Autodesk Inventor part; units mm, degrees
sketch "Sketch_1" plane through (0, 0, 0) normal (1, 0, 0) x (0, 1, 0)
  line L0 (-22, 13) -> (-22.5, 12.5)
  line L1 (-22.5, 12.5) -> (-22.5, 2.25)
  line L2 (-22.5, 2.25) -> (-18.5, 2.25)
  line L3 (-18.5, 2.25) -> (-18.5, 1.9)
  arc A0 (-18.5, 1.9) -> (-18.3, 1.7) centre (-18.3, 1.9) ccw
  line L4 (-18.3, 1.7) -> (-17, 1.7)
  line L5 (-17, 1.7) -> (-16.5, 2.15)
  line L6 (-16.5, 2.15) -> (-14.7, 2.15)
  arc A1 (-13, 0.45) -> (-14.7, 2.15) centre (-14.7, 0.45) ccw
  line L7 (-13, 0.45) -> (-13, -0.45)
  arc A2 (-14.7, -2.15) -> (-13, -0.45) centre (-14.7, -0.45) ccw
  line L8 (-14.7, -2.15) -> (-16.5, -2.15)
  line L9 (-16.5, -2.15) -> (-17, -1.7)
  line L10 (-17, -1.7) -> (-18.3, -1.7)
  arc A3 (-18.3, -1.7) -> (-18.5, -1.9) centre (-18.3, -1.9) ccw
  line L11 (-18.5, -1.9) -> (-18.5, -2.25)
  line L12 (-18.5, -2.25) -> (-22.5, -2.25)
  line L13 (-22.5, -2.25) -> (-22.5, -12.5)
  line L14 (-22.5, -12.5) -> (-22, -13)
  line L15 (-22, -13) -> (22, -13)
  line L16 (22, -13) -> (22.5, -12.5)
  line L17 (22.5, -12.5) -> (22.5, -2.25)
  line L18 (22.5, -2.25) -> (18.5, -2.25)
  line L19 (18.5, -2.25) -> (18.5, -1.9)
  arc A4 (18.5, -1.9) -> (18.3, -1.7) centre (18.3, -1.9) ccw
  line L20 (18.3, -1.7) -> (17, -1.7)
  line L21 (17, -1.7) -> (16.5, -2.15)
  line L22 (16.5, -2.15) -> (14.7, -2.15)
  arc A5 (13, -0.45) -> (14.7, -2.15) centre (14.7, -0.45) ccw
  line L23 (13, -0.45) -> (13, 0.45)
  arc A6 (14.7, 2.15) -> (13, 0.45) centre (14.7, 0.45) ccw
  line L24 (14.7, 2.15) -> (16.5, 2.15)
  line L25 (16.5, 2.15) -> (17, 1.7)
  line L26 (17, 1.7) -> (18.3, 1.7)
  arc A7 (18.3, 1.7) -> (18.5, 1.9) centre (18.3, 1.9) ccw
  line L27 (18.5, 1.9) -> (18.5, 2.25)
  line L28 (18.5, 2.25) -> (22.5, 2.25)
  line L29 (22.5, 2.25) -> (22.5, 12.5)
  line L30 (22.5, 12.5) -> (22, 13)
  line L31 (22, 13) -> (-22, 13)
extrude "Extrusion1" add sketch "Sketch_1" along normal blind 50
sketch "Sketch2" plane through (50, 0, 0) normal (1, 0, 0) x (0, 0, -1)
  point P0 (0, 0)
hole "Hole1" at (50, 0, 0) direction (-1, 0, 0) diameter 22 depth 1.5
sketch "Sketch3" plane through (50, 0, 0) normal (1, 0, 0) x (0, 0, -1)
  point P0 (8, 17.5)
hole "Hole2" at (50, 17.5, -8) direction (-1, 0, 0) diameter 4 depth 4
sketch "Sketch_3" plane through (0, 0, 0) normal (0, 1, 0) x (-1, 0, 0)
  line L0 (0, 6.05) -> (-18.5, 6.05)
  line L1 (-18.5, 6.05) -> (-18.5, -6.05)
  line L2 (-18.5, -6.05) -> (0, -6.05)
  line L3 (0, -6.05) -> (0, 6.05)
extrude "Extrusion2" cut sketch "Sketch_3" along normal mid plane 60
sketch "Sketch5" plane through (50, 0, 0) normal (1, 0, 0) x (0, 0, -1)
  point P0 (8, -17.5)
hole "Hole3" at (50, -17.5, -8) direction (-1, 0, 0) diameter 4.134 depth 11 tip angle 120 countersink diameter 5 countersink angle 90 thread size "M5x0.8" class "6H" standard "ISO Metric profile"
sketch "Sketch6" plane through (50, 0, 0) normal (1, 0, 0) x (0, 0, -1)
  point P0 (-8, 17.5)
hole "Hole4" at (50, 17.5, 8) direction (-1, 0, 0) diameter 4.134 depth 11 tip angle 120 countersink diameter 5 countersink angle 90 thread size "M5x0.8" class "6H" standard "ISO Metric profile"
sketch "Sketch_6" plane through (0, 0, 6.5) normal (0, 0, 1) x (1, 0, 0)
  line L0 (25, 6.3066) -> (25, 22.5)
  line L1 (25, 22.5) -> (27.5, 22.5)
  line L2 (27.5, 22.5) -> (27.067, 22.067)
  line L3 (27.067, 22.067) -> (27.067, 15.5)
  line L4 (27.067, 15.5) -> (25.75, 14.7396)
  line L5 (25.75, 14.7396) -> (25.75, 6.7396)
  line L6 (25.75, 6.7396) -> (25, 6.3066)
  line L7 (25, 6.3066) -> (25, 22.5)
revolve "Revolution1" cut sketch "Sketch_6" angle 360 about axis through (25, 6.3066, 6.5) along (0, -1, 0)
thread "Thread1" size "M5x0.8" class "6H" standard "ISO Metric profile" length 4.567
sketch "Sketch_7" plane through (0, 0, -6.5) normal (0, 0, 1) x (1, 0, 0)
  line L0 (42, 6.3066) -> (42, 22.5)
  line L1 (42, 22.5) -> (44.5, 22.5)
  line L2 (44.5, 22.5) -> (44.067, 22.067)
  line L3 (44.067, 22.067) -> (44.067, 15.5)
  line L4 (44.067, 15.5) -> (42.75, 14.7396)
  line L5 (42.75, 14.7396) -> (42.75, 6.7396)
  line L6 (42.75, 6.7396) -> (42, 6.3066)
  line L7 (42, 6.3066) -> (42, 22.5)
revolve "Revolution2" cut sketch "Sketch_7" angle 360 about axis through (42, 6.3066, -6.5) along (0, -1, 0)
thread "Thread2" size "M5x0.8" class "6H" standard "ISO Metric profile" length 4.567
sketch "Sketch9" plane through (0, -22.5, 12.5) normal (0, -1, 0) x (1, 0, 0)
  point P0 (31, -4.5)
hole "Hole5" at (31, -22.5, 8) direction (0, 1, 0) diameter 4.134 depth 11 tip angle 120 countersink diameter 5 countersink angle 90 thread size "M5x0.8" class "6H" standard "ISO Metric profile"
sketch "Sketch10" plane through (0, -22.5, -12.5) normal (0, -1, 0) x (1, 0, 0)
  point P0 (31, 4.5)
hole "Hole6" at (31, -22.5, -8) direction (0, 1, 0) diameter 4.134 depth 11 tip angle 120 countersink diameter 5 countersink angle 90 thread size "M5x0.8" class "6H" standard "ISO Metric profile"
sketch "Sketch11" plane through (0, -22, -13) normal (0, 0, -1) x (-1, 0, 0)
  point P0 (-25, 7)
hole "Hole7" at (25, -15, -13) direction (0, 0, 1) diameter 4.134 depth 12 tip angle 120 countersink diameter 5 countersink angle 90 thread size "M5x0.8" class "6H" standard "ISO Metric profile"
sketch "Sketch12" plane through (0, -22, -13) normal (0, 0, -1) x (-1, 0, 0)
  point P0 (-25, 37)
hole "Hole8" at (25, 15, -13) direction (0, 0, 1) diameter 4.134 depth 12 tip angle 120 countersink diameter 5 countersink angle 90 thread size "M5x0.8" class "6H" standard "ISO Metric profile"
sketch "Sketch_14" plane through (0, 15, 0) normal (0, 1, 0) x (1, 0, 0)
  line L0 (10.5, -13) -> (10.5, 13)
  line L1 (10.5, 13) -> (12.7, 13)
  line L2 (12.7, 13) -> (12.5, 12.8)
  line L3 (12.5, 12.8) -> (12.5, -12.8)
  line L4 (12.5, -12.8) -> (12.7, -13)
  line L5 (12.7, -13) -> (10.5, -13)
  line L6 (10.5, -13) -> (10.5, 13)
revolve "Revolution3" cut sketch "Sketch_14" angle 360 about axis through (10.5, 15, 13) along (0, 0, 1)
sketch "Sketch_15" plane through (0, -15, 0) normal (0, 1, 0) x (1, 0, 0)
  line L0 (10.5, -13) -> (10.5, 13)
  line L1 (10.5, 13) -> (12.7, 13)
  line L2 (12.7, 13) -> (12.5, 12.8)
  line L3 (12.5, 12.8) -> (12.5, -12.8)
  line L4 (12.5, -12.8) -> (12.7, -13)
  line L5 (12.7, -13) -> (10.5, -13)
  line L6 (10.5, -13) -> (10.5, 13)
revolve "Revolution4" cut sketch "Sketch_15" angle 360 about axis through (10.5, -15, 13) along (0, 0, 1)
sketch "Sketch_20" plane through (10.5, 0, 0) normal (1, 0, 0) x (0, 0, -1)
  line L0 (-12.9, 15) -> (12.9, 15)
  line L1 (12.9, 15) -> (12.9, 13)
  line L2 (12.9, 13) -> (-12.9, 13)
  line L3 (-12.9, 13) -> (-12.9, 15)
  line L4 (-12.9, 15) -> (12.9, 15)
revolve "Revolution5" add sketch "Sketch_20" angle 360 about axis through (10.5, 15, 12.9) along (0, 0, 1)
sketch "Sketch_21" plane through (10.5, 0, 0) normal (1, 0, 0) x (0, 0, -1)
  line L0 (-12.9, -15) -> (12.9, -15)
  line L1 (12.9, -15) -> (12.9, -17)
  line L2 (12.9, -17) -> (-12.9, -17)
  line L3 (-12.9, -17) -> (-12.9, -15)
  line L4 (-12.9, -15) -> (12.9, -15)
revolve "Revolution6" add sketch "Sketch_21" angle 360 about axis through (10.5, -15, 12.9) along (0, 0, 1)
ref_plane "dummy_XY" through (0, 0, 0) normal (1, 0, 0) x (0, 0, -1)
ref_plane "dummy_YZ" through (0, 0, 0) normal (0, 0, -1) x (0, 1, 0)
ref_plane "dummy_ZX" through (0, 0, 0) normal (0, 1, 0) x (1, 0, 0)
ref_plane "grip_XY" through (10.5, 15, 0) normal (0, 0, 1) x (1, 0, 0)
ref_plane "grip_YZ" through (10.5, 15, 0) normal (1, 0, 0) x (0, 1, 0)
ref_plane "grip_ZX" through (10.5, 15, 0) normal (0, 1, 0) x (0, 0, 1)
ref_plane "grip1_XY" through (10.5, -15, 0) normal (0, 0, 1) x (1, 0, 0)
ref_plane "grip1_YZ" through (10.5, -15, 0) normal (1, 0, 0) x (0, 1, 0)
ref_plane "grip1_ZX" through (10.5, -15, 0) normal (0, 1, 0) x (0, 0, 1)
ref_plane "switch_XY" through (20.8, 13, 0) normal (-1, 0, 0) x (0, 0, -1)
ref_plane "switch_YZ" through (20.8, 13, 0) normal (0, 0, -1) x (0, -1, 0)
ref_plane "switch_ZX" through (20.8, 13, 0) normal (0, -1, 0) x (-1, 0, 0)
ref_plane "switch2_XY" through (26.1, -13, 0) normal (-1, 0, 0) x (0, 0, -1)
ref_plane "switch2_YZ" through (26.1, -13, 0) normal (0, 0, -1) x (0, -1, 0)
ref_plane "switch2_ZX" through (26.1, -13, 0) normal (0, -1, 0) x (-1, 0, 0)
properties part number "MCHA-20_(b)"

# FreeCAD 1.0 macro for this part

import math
import FreeCAD as App
import Part
import Sketcher

V = App.Vector
Q = App.Units.Quantity

doc = App.newDocument("Part")
body = doc.addObject("PartDesign::Body", "Body")

sketch1 = body.newObject("Sketcher::SketchObject", "Sketch")
sketch1.AttachmentSupport = (doc.getObject("YZ_Plane"), [""])
sketch1.MapMode = "FlatFace"
sketch1.addGeometry([
    Part.LineSegment(V(22, 13, 0), V(-22, 13, 0)),
    Part.LineSegment(V(-22, 13, 0), V(-22.5, 12.5, 0)),
    Part.LineSegment(V(-22.5, 12.5, 0), V(-22.5, 2.25, 0)),
    Part.LineSegment(V(-22.5, 2.25, 0), V(-18.5, 2.25, 0)),
    Part.LineSegment(V(-18.5, 2.25, 0), V(-18.5, 1.9, 0)),
    Part.ArcOfCircle(Part.Circle(V(-18.3, 1.9, 0), V(0, 0, 1), 0.2), math.radians(180), math.radians(270)),
    Part.LineSegment(V(-18.3, 1.7, 0), V(-17, 1.7, 0)),
    Part.LineSegment(V(-17, 1.7, 0), V(-16.5, 2.15, 0)),
    Part.LineSegment(V(-16.5, 2.15, 0), V(-14.7, 2.15, 0)),
    Part.ArcOfCircle(Part.Circle(V(-14.7, 0.45, 0), V(0, 0, 1), 1.7), math.radians(0), math.radians(90)),
    Part.LineSegment(V(-13, 0.45, 0), V(-13, -0.45, 0)),
    Part.ArcOfCircle(Part.Circle(V(-14.7, -0.45, 0), V(0, 0, 1), 1.7), math.radians(-90), math.radians(0)),
    Part.LineSegment(V(-14.7, -2.15, 0), V(-16.5, -2.15, 0)),
    Part.LineSegment(V(-16.5, -2.15, 0), V(-17, -1.7, 0)),
    Part.LineSegment(V(-17, -1.7, 0), V(-18.3, -1.7, 0)),
    Part.ArcOfCircle(Part.Circle(V(-18.3, -1.9, 0), V(0, 0, 1), 0.2), math.radians(90), math.radians(180)),
    Part.LineSegment(V(-18.5, -1.9, 0), V(-18.5, -2.25, 0)),
    Part.LineSegment(V(-18.5, -2.25, 0), V(-22.5, -2.25, 0)),
    Part.LineSegment(V(-22.5, -2.25, 0), V(-22.5, -12.5, 0)),
    Part.LineSegment(V(-22.5, -12.5, 0), V(-22, -13, 0)),
    Part.LineSegment(V(-22, -13, 0), V(22, -13, 0)),
    Part.LineSegment(V(22, -13, 0), V(22.5, -12.5, 0)),
    Part.LineSegment(V(22.5, -12.5, 0), V(22.5, -2.25, 0)),
    Part.LineSegment(V(22.5, -2.25, 0), V(18.5, -2.25, 0)),
    Part.LineSegment(V(18.5, -2.25, 0), V(18.5, -1.9, 0)),
    Part.ArcOfCircle(Part.Circle(V(18.3, -1.9, 0), V(0, 0, 1), 0.2), math.radians(0), math.radians(90)),
    Part.LineSegment(V(18.3, -1.7, 0), V(17, -1.7, 0)),
    Part.LineSegment(V(17, -1.7, 0), V(16.5, -2.15, 0)),
    Part.LineSegment(V(16.5, -2.15, 0), V(14.7, -2.15, 0)),
    Part.ArcOfCircle(Part.Circle(V(14.7, -0.45, 0), V(0, 0, 1), 1.7), math.radians(180), math.radians(270)),
    Part.LineSegment(V(13, -0.45, 0), V(13, 0.45, 0)),
    Part.ArcOfCircle(Part.Circle(V(14.7, 0.45, 0), V(0, 0, 1), 1.7), math.radians(90), math.radians(180)),
    Part.LineSegment(V(14.7, 2.15, 0), V(16.5, 2.15, 0)),
    Part.LineSegment(V(16.5, 2.15, 0), V(17, 1.7, 0)),
    Part.LineSegment(V(17, 1.7, 0), V(18.3, 1.7, 0)),
    Part.ArcOfCircle(Part.Circle(V(18.3, 1.9, 0), V(0, 0, 1), 0.2), math.radians(-90), math.radians(0)),
    Part.LineSegment(V(18.5, 1.9, 0), V(18.5, 2.25, 0)),
    Part.LineSegment(V(18.5, 2.25, 0), V(22.5, 2.25, 0)),
    Part.LineSegment(V(22.5, 2.25, 0), V(22.5, 12.5, 0)),
    Part.LineSegment(V(22.5, 12.5, 0), V(22, 13, 0)),
], False)
sketch1.addConstraint([
    Sketcher.Constraint("Coincident", 0, 2, 1, 1),
    Sketcher.Constraint("Coincident", 1, 2, 2, 1),
    Sketcher.Constraint("Coincident", 2, 2, 3, 1),
    Sketcher.Constraint("Coincident", 3, 2, 4, 1),
    Sketcher.Constraint("Tangent", 4, 2, 5, 1),
    Sketcher.Constraint("Tangent", 5, 2, 6, 1),
    Sketcher.Constraint("Coincident", 6, 2, 7, 1),
    Sketcher.Constraint("Coincident", 7, 2, 8, 1),
    Sketcher.Constraint("Tangent", 8, 2, 9, 2),
    Sketcher.Constraint("Tangent", 9, 1, 10, 1),
    Sketcher.Constraint("Tangent", 10, 2, 11, 2),
    Sketcher.Constraint("Tangent", 11, 1, 12, 1),
    Sketcher.Constraint("Coincident", 12, 2, 13, 1),
    Sketcher.Constraint("Coincident", 13, 2, 14, 1),
    Sketcher.Constraint("Tangent", 14, 2, 15, 1),
    Sketcher.Constraint("Tangent", 15, 2, 16, 1),
    Sketcher.Constraint("Coincident", 16, 2, 17, 1),
    Sketcher.Constraint("Coincident", 17, 2, 18, 1),
    Sketcher.Constraint("Coincident", 18, 2, 19, 1),
    Sketcher.Constraint("Coincident", 19, 2, 20, 1),
    Sketcher.Constraint("Coincident", 20, 2, 21, 1),
    Sketcher.Constraint("Coincident", 21, 2, 22, 1),
    Sketcher.Constraint("Coincident", 22, 2, 23, 1),
    Sketcher.Constraint("Coincident", 23, 2, 24, 1),
    Sketcher.Constraint("Tangent", 24, 2, 25, 1),
    Sketcher.Constraint("Tangent", 25, 2, 26, 1),
    Sketcher.Constraint("Coincident", 26, 2, 27, 1),
    Sketcher.Constraint("Coincident", 27, 2, 28, 1),
    Sketcher.Constraint("Tangent", 28, 2, 29, 2),
    Sketcher.Constraint("Tangent", 29, 1, 30, 1),
    Sketcher.Constraint("Tangent", 30, 2, 31, 2),
    Sketcher.Constraint("Tangent", 31, 1, 32, 1),
    Sketcher.Constraint("Coincident", 32, 2, 33, 1),
    Sketcher.Constraint("Coincident", 33, 2, 34, 1),
    Sketcher.Constraint("Tangent", 34, 2, 35, 1),
    Sketcher.Constraint("Tangent", 35, 2, 36, 1),
    Sketcher.Constraint("Coincident", 36, 2, 37, 1),
    Sketcher.Constraint("Coincident", 37, 2, 38, 1),
    Sketcher.Constraint("Coincident", 38, 2, 39, 1),
    Sketcher.Constraint("Coincident", 39, 2, 0, 1),
    Sketcher.Constraint("Horizontal", 0),
    Sketcher.Constraint("Vertical", 2),
    Sketcher.Constraint("Horizontal", 3),
    Sketcher.Constraint("Vertical", 4),
    Sketcher.Constraint("Horizontal", 6),
    Sketcher.Constraint("Horizontal", 8),
    Sketcher.Constraint("Vertical", 10),
    Sketcher.Constraint("Horizontal", 12),
    Sketcher.Constraint("Horizontal", 14),
    Sketcher.Constraint("Vertical", 16),
    Sketcher.Constraint("Horizontal", 17),
    Sketcher.Constraint("Vertical", 18),
    Sketcher.Constraint("Horizontal", 20),
    Sketcher.Constraint("Vertical", 22),
    Sketcher.Constraint("Horizontal", 23),
    Sketcher.Constraint("Vertical", 24),
    Sketcher.Constraint("Horizontal", 26),
    Sketcher.Constraint("Horizontal", 28),
    Sketcher.Constraint("Vertical", 30),
    Sketcher.Constraint("Horizontal", 32),
    Sketcher.Constraint("Horizontal", 34),
    Sketcher.Constraint("Vertical", 36),
    Sketcher.Constraint("Horizontal", 37),
    Sketcher.Constraint("Vertical", 38),
    Sketcher.Constraint("Equal", 9, 11),
    Sketcher.Constraint("Equal", 5, 15),
    Sketcher.Constraint("Equal", 15, 25),
    Sketcher.Constraint("Equal", 11, 29),
    Sketcher.Constraint("Equal", 29, 31),
    Sketcher.Constraint("Equal", 25, 35),
    Sketcher.Constraint("Symmetric", 5, 3, 25, 3, -1, 1),
    Sketcher.Constraint("Symmetric", 9, 3, 29, 3, -1, 1),
    Sketcher.Constraint("Symmetric", 15, 3, 35, 3, -1, 1),
    Sketcher.Constraint("Symmetric", 0, 2, 20, 2, -1, 1),
    Sketcher.Constraint("Symmetric", 1, 2, 21, 2, -1, 1),
    Sketcher.Constraint("Symmetric", 12, 2, 32, 2, -1, 1),
    Sketcher.Constraint("Symmetric", 17, 2, 37, 2, -1, 1),
    Sketcher.Constraint("Symmetric", 15, 3, 25, 3, -2),
    Sketcher.Constraint("Symmetric", 18, 2, 21, 2, -2),
    Sketcher.Constraint("Symmetric", 12, 2, 27, 2, -2),
    Sketcher.Constraint("Perpendicular", 1, 19),
    Sketcher.Constraint("Parallel", 7, 27),
    Sketcher.Constraint("Parallel", 13, 33),
    Sketcher.Constraint("Perpendicular", 21, 39),
    Sketcher.Constraint("Horizontal", 17, 2, 22, 2),
    Sketcher.Constraint("Horizontal", 3, 2, 36, 2),
    Sketcher.Constraint("Horizontal", 1, 2, 38, 2),
    Sketcher.Constraint("Vertical", 7, 2, 12, 2),
    Sketcher.Constraint("Vertical", 6, 2, 13, 2),
    Sketcher.Constraint("Vertical", 0, 2, 19, 2),
    Sketcher.Constraint("Radius", 5, 0.2),
    Sketcher.Constraint("Radius", 9, 1.7),
    Sketcher.Constraint("DistanceX", 0, 2, 0, 1, 44.0),
    Sketcher.Constraint("DistanceX", 3, 1, 3, 2, 4.0),
    Sketcher.Constraint("DistanceX", 6, 1, 6, 2, 1.3),
    Sketcher.Constraint("DistanceX", 8, 1, 8, 2, 1.8),
    Sketcher.Constraint("DistanceY", 10, 2, 10, 1, 0.9),
    Sketcher.Constraint("DistanceY", -1, 1, 0, 2, 13.0),
    Sketcher.Constraint("DistanceX", 6, 2, -1, 1, 17.0),
    Sketcher.Constraint("DistanceX", 9, 1, -1, 1, 13.0),
    Sketcher.Constraint("DistanceY", 2, 2, 2, 1, 10.25),
    Sketcher.Constraint("DistanceY", 4, 2, 4, 1, 0.35),
])
pad1 = body.newObject("PartDesign::Pad", "Pad")
pad1.Profile = sketch1
pad1.Length = 50

sketch2 = body.newObject("Sketcher::SketchObject", "Sketch001")
sketch2.AttachmentSupport = (doc.getObject("YZ_Plane"), [""])
sketch2.MapMode = "FlatFace"
sketch2.AttachmentOffset = App.Placement(V(0, 0, 50), App.Rotation())
sketch2.addGeometry(Part.Circle(V(0, 0, 0), V(0, 0, 1), 11), False)
sketch2.addConstraint([
    Sketcher.Constraint("Coincident", 0, 3, -1, 1),
    Sketcher.Constraint("Diameter", 0, 22.0),
])
doc.recompute()
hole = body.newObject("PartDesign::Hole", "Hole")
hole.Profile = sketch2
hole.ThreadType = "None"
hole.Diameter = 22
hole.DepthType = "Dimension"
hole.Depth = 1.5
hole.DrillPoint = "Flat"

sketch3 = body.newObject("Sketcher::SketchObject", "Sketch002")
sketch3.AttachmentSupport = (doc.getObject("YZ_Plane"), [""])
sketch3.MapMode = "FlatFace"
sketch3.AttachmentOffset = App.Placement(V(0, 0, 50), App.Rotation())
sketch3.addGeometry(Part.Circle(V(17.5, -8, 0), V(0, 0, 1), 2), False)
sketch3.addConstraint([
    Sketcher.Constraint("Diameter", 0, 4.0),
    Sketcher.Constraint("DistanceY", 0, 3, -1, 1, 8.0),
    Sketcher.Constraint("DistanceX", -1, 1, 0, 3, 17.5),
])
doc.recompute()
hole2 = body.newObject("PartDesign::Hole", "Hole001")
hole2.Profile = sketch3
hole2.ThreadType = "None"
hole2.Diameter = 4
hole2.DepthType = "Dimension"
hole2.Depth = 4
hole2.DrillPoint = "Flat"

sketch4 = body.newObject("Sketcher::SketchObject", "Sketch003")
sketch4.AttachmentSupport = (doc.getObject("XZ_Plane"), [""])
sketch4.MapMode = "FlatFace"
sketch4.addGeometry([
    Part.LineSegment(V(0, -6, 0), V(0, 6, 0)),
    Part.LineSegment(V(0, 6, 0), V(18, 6, 0)),
    Part.LineSegment(V(18, 6, 0), V(18, -6, 0)),
    Part.LineSegment(V(18, -6, 0), V(0, -6, 0)),
], False)
sketch4.addConstraint([
    Sketcher.Constraint("Coincident", 0, 2, 1, 1),
    Sketcher.Constraint("Coincident", 1, 2, 2, 1),
    Sketcher.Constraint("Coincident", 2, 2, 3, 1),
    Sketcher.Constraint("Coincident", 3, 2, 0, 1),
    Sketcher.Constraint("Vertical", 0),
    Sketcher.Constraint("Horizontal", 1),
    Sketcher.Constraint("Vertical", 2),
    Sketcher.Constraint("Horizontal", 3),
    Sketcher.Constraint("Symmetric", 0, 2, 3, 2, -1, 1),
    Sketcher.Constraint("DistanceX", 1, 1, 1, 2, 18.5),
    Sketcher.Constraint("DistanceY", 0, 1, 0, 2, 12.1),
])
pocket1 = body.newObject("PartDesign::Pocket", "Pocket")
pocket1.Profile = sketch4
pocket1.Length = 60
pocket1.Midplane = True

sketch5 = body.newObject("Sketcher::SketchObject", "Sketch004")
sketch5.AttachmentSupport = (doc.getObject("YZ_Plane"), [""])
sketch5.MapMode = "FlatFace"
sketch5.AttachmentOffset = App.Placement(V(0, 0, 50), App.Rotation())
sketch5.addGeometry(Part.Circle(V(-17.5, -8, 0), V(0, 0, 1), 2.1), False)
sketch5.addConstraint([
    Sketcher.Constraint("Diameter", 0, 4.134),
    Sketcher.Constraint("DistanceY", 0, 3, -1, 1, 8.0),
    Sketcher.Constraint("DistanceX", 0, 3, -1, 1, 17.5),
])
doc.recompute()
hole3 = body.newObject("PartDesign::Hole", "Hole002")
hole3.Profile = sketch5
hole3.ThreadType = "None"
hole3.Diameter = 4.134
hole3.DepthType = "Dimension"
hole3.Depth = 11
hole3.DrillPoint = "Angled"
hole3.DrillPointAngle = 120
hole3.HoleCutType = "Countersink"
hole3.HoleCutDiameter = 5
hole3.HoleCutCountersinkAngle = 90

sketch6 = body.newObject("Sketcher::SketchObject", "Sketch005")
sketch6.AttachmentSupport = (doc.getObject("YZ_Plane"), [""])
sketch6.MapMode = "FlatFace"
sketch6.AttachmentOffset = App.Placement(V(0, 0, 50), App.Rotation())
sketch6.addGeometry(Part.Circle(V(17.5, 8, 0), V(0, 0, 1), 2.1), False)
sketch6.addConstraint([
    Sketcher.Constraint("Diameter", 0, 4.134),
    Sketcher.Constraint("DistanceY", -1, 1, 0, 3, 8.0),
    Sketcher.Constraint("DistanceX", -1, 1, 0, 3, 17.5),
])
doc.recompute()
hole4 = body.newObject("PartDesign::Hole", "Hole003")
hole4.Profile = sketch6
hole4.ThreadType = "None"
hole4.Diameter = 4.134
hole4.DepthType = "Dimension"
hole4.Depth = 11
hole4.DrillPoint = "Angled"
hole4.DrillPointAngle = 120
hole4.HoleCutType = "Countersink"
hole4.HoleCutDiameter = 5
hole4.HoleCutCountersinkAngle = 90

sketch7 = body.newObject("Sketcher::SketchObject", "Sketch006")
sketch7.AttachmentSupport = (doc.getObject("XY_Plane"), [""])
sketch7.MapMode = "FlatFace"
sketch7.AttachmentOffset = App.Placement(V(0, 0, 6.5), App.Rotation())
sketch7.addGeometry([
    Part.LineSegment(V(25, 22.5, 0), V(25, 6.3, 0)),
    Part.LineSegment(V(25, 6.3, 0), V(25.8, 6.7, 0)),
    Part.LineSegment(V(25.8, 6.7, 0), V(25.8, 14.7, 0)),
    Part.LineSegment(V(25.8, 14.7, 0), V(27.1, 15.5, 0)),
    Part.LineSegment(V(27.1, 15.5, 0), V(27.1, 22.1, 0)),
    Part.LineSegment(V(27.1, 22.1, 0), V(27.5, 22.5, 0)),
    Part.LineSegment(V(27.5, 22.5, 0), V(25, 22.5, 0)),
], False)
sketch7.addGeometry(Part.LineSegment(V(25, 22.5, 0), V(25, 6.3, 0)), True)
sketch7.addConstraint([
    Sketcher.Constraint("Coincident", 0, 2, 1, 1),
    Sketcher.Constraint("Coincident", 1, 2, 2, 1),
    Sketcher.Constraint("Coincident", 2, 2, 3, 1),
    Sketcher.Constraint("Coincident", 3, 2, 4, 1),
    Sketcher.Constraint("Coincident", 4, 2, 5, 1),
    Sketcher.Constraint("Coincident", 5, 2, 6, 1),
    Sketcher.Constraint("Coincident", 6, 2, 0, 1),
    Sketcher.Constraint("Vertical", 0),
    Sketcher.Constraint("Vertical", 2),
    Sketcher.Constraint("Vertical", 4),
    Sketcher.Constraint("Horizontal", 6),
    Sketcher.Constraint("Vertical", 7),
    Sketcher.Constraint("Coincident", 7, 1, 6, 2),
    Sketcher.Constraint("Parallel", 1, 3),
    Sketcher.Constraint("Equal", 0, 7),
    Sketcher.Constraint("DistanceY", 2, 1, 2, 2, 8.0),
    Sketcher.Constraint("Angle", 1, Q("29.9993 deg")),
    Sketcher.Constraint("Angle", 5, Q("45 deg")),
    Sketcher.Constraint("DistanceX", 6, 2, 6, 1, 2.5),
    Sketcher.Constraint("DistanceX", -1, 1, 0, 2, 25.0),
    Sketcher.Constraint("DistanceY", 3, 2, 5, 2, 7.0),
    Sketcher.Constraint("DistanceY", -1, 1, 3, 2, 15.5),
    Sketcher.Constraint("DistanceY", 4, 1, 4, 2, 6.567),
    Sketcher.Constraint("DistanceX", -1, 1, 1, 2, 25.75),
])
groove = body.newObject("PartDesign::Groove", "Groove")
groove.Profile = sketch7
groove.ReferenceAxis = (sketch7, ["Axis0"])
groove.Angle = 360

sketch8 = body.newObject("Sketcher::SketchObject", "Sketch007")
sketch8.AttachmentSupport = (doc.getObject("XY_Plane"), [""])
sketch8.MapMode = "FlatFace"
sketch8.AttachmentOffset = App.Placement(V(0, 0, -6.5), App.Rotation())
sketch8.addGeometry([
    Part.LineSegment(V(42, 22.5, 0), V(42, 6.3, 0)),
    Part.LineSegment(V(42, 6.3, 0), V(42.8, 6.7, 0)),
    Part.LineSegment(V(42.8, 6.7, 0), V(42.8, 14.7, 0)),
    Part.LineSegment(V(42.8, 14.7, 0), V(44.1, 15.5, 0)),
    Part.LineSegment(V(44.1, 15.5, 0), V(44.1, 22.1, 0)),
    Part.LineSegment(V(44.1, 22.1, 0), V(44.5, 22.5, 0)),
    Part.LineSegment(V(44.5, 22.5, 0), V(42, 22.5, 0)),
], False)
sketch8.addGeometry(Part.LineSegment(V(42, 22.5, 0), V(42, 6.3, 0)), True)
sketch8.addConstraint([
    Sketcher.Constraint("Coincident", 0, 2, 1, 1),
    Sketcher.Constraint("Coincident", 1, 2, 2, 1),
    Sketcher.Constraint("Coincident", 2, 2, 3, 1),
    Sketcher.Constraint("Coincident", 3, 2, 4, 1),
    Sketcher.Constraint("Coincident", 4, 2, 5, 1),
    Sketcher.Constraint("Coincident", 5, 2, 6, 1),
    Sketcher.Constraint("Coincident", 6, 2, 0, 1),
    Sketcher.Constraint("Vertical", 0),
    Sketcher.Constraint("Vertical", 2),
    Sketcher.Constraint("Vertical", 4),
    Sketcher.Constraint("Horizontal", 6),
    Sketcher.Constraint("Vertical", 7),
    Sketcher.Constraint("Coincident", 7, 1, 6, 2),
    Sketcher.Constraint("Parallel", 1, 3),
    Sketcher.Constraint("Equal", 0, 7),
    Sketcher.Constraint("DistanceY", 2, 1, 2, 2, 8.0),
    Sketcher.Constraint("Angle", 1, Q("29.9993 deg")),
    Sketcher.Constraint("Angle", 5, Q("45 deg")),
    Sketcher.Constraint("DistanceX", 6, 2, 6, 1, 2.5),
    Sketcher.Constraint("DistanceX", -1, 1, 0, 2, 42.0),
    Sketcher.Constraint("DistanceY", 3, 2, 5, 2, 7.0),
    Sketcher.Constraint("DistanceY", -1, 1, 3, 2, 15.5),
    Sketcher.Constraint("DistanceY", 4, 1, 4, 2, 6.567),
    Sketcher.Constraint("DistanceX", -1, 1, 1, 2, 42.75),
])
groove2 = body.newObject("PartDesign::Groove", "Groove001")
groove2.Profile = sketch8
groove2.ReferenceAxis = (sketch8, ["Axis0"])
groove2.Angle = 360

sketch9 = body.newObject("Sketcher::SketchObject", "Sketch008")
sketch9.AttachmentSupport = (doc.getObject("XZ_Plane"), [""])
sketch9.MapMode = "FlatFace"
sketch9.AttachmentOffset = App.Placement(V(0, 0, 22.5), App.Rotation())
sketch9.addGeometry(Part.Circle(V(31, 8, 0), V(0, 0, 1), 2.1), False)
sketch9.addConstraint([
    Sketcher.Constraint("Diameter", 0, 4.134),
    Sketcher.Constraint("DistanceX", -1, 1, 0, 3, 31.0),
    Sketcher.Constraint("DistanceY", -1, 1, 0, 3, 8.0),
])
doc.recompute()
hole5 = body.newObject("PartDesign::Hole", "Hole004")
hole5.Profile = sketch9
hole5.ThreadType = "None"
hole5.Diameter = 4.134
hole5.DepthType = "Dimension"
hole5.Depth = 11
hole5.DrillPoint = "Angled"
hole5.DrillPointAngle = 120
hole5.HoleCutType = "Countersink"
hole5.HoleCutDiameter = 5
hole5.HoleCutCountersinkAngle = 90

sketch10 = body.newObject("Sketcher::SketchObject", "Sketch009")
sketch10.AttachmentSupport = (doc.getObject("XZ_Plane"), [""])
sketch10.MapMode = "FlatFace"
sketch10.AttachmentOffset = App.Placement(V(0, 0, 22.5), App.Rotation())
sketch10.addGeometry(Part.Circle(V(31, -8, 0), V(0, 0, 1), 2.1), False)
sketch10.addConstraint([
    Sketcher.Constraint("Diameter", 0, 4.134),
    Sketcher.Constraint("DistanceX", -1, 1, 0, 3, 31.0),
    Sketcher.Constraint("DistanceY", 0, 3, -1, 1, 8.0),
])
doc.recompute()
hole6 = body.newObject("PartDesign::Hole", "Hole005")
hole6.Profile = sketch10
hole6.ThreadType = "None"
hole6.Diameter = 4.134
hole6.DepthType = "Dimension"
hole6.Depth = 11
hole6.DrillPoint = "Angled"
hole6.DrillPointAngle = 120
hole6.HoleCutType = "Countersink"
hole6.HoleCutDiameter = 5
hole6.HoleCutCountersinkAngle = 90

sketch11 = body.newObject("Sketcher::SketchObject", "Sketch010")
sketch11.AttachmentSupport = (doc.getObject("XY_Plane"), [""])
sketch11.MapMode = "FlatFace"
sketch11.AttachmentOffset = App.Placement(V(0, 0, -13), App.Rotation())
sketch11.addGeometry(Part.Circle(V(25, -15, 0), V(0, 0, 1), 2.1), False)
sketch11.addConstraint([
    Sketcher.Constraint("Diameter", 0, 4.134),
    Sketcher.Constraint("DistanceX", -1, 1, 0, 3, 25.0),
    Sketcher.Constraint("DistanceY", 0, 3, -1, 1, 15.0),
])
doc.recompute()
hole7 = body.newObject("PartDesign::Hole", "Hole006")
hole7.Profile = sketch11
hole7.ThreadType = "None"
hole7.Diameter = 4.134
hole7.DepthType = "Dimension"
hole7.Depth = 12
hole7.DrillPoint = "Angled"
hole7.DrillPointAngle = 120
hole7.HoleCutType = "Countersink"
hole7.HoleCutDiameter = 5
hole7.HoleCutCountersinkAngle = 90
hole7.Reversed = True

sketch12 = body.newObject("Sketcher::SketchObject", "Sketch011")
sketch12.AttachmentSupport = (doc.getObject("XY_Plane"), [""])
sketch12.MapMode = "FlatFace"
sketch12.AttachmentOffset = App.Placement(V(0, 0, -13), App.Rotation())
sketch12.addGeometry(Part.Circle(V(25, 15, 0), V(0, 0, 1), 2.1), False)
sketch12.addConstraint([
    Sketcher.Constraint("Diameter", 0, 4.134),
    Sketcher.Constraint("DistanceX", -1, 1, 0, 3, 25.0),
    Sketcher.Constraint("DistanceY", -1, 1, 0, 3, 15.0),
])
doc.recompute()
hole8 = body.newObject("PartDesign::Hole", "Hole007")
hole8.Profile = sketch12
hole8.ThreadType = "None"
hole8.Diameter = 4.134
hole8.DepthType = "Dimension"
hole8.Depth = 12
hole8.DrillPoint = "Angled"
hole8.DrillPointAngle = 120
hole8.HoleCutType = "Countersink"
hole8.HoleCutDiameter = 5
hole8.HoleCutCountersinkAngle = 90
hole8.Reversed = True

sketch13 = body.newObject("Sketcher::SketchObject", "Sketch012")
sketch13.AttachmentSupport = (doc.getObject("XZ_Plane"), [""])
sketch13.MapMode = "FlatFace"
sketch13.AttachmentOffset = App.Placement(V(0, 0, -15), App.Rotation())
sketch13.addGeometry([
    Part.LineSegment(V(10.5, -13, 0), V(10.5, 13, 0)),
    Part.LineSegment(V(10.5, 13, 0), V(12.7, 13, 0)),
    Part.LineSegment(V(12.7, 13, 0), V(12.5, 12.8, 0)),
    Part.LineSegment(V(12.5, 12.8, 0), V(12.5, -12.8, 0)),
    Part.LineSegment(V(12.5, -12.8, 0), V(12.7, -13, 0)),
    Part.LineSegment(V(12.7, -13, 0), V(10.5, -13, 0)),
], False)
sketch13.addGeometry(Part.LineSegment(V(10.5, -13, 0), V(10.5, 13, 0)), True)
sketch13.addConstraint([
    Sketcher.Constraint("Coincident", 0, 2, 1, 1),
    Sketcher.Constraint("Coincident", 1, 2, 2, 1),
    Sketcher.Constraint("Coincident", 2, 2, 3, 1),
    Sketcher.Constraint("Coincident", 3, 2, 4, 1),
    Sketcher.Constraint("Coincident", 4, 2, 5, 1),
    Sketcher.Constraint("Coincident", 5, 2, 0, 1),
    Sketcher.Constraint("Vertical", 0),
    Sketcher.Constraint("Horizontal", 1),
    Sketcher.Constraint("Vertical", 3),
    Sketcher.Constraint("Horizontal", 5),
    Sketcher.Constraint("Vertical", 6),
    Sketcher.Constraint("Coincident", 6, 1, 5, 2),
    Sketcher.Constraint("Symmetric", 1, 2, 4, 2, -1),
    Sketcher.Constraint("Perpendicular", 2, 4),
    Sketcher.Constraint("Horizontal", 1, 2, 6, 2),
    Sketcher.Constraint("Equal", 2, 4),
    Sketcher.Constraint("DistanceY", 0, 1, 0, 2, 26.0),
    Sketcher.Constraint("DistanceX", 1, 1, 1, 2, 2.2),
    Sketcher.Constraint("DistanceY", 3, 2, 3, 1, 25.6),
    Sketcher.Constraint("DistanceX", -1, 1, 0, 2, 10.5),
])
groove3 = body.newObject("PartDesign::Groove", "Groove002")
groove3.Profile = sketch13
groove3.ReferenceAxis = (sketch13, ["Axis0"])
groove3.Angle = 360

sketch14 = body.newObject("Sketcher::SketchObject", "Sketch013")
sketch14.AttachmentSupport = (doc.getObject("XZ_Plane"), [""])
sketch14.MapMode = "FlatFace"
sketch14.AttachmentOffset = App.Placement(V(0, 0, 15), App.Rotation())
sketch14.addGeometry([
    Part.LineSegment(V(10.5, -13, 0), V(10.5, 13, 0)),
    Part.LineSegment(V(10.5, 13, 0), V(12.7, 13, 0)),
    Part.LineSegment(V(12.7, 13, 0), V(12.5, 12.8, 0)),
    Part.LineSegment(V(12.5, 12.8, 0), V(12.5, -12.8, 0)),
    Part.LineSegment(V(12.5, -12.8, 0), V(12.7, -13, 0)),
    Part.LineSegment(V(12.7, -13, 0), V(10.5, -13, 0)),
], False)
sketch14.addGeometry(Part.LineSegment(V(10.5, -13, 0), V(10.5, 13, 0)), True)
sketch14.addConstraint([
    Sketcher.Constraint("Coincident", 0, 2, 1, 1),
    Sketcher.Constraint("Coincident", 1, 2, 2, 1),
    Sketcher.Constraint("Coincident", 2, 2, 3, 1),
    Sketcher.Constraint("Coincident", 3, 2, 4, 1),
    Sketcher.Constraint("Coincident", 4, 2, 5, 1),
    Sketcher.Constraint("Coincident", 5, 2, 0, 1),
    Sketcher.Constraint("Vertical", 0),
    Sketcher.Constraint("Horizontal", 1),
    Sketcher.Constraint("Vertical", 3),
    Sketcher.Constraint("Horizontal", 5),
    Sketcher.Constraint("Vertical", 6),
    Sketcher.Constraint("Coincident", 6, 1, 5, 2),
    Sketcher.Constraint("Symmetric", 1, 2, 4, 2, -1),
    Sketcher.Constraint("Perpendicular", 2, 4),
    Sketcher.Constraint("Horizontal", 1, 2, 6, 2),
    Sketcher.Constraint("Equal", 2, 4),
    Sketcher.Constraint("DistanceY", 0, 1, 0, 2, 26.0),
    Sketcher.Constraint("DistanceX", 1, 1, 1, 2, 2.2),
    Sketcher.Constraint("DistanceY", 3, 2, 3, 1, 25.6),
    Sketcher.Constraint("DistanceX", -1, 1, 0, 2, 10.5),
])
groove4 = body.newObject("PartDesign::Groove", "Groove003")
groove4.Profile = sketch14
groove4.ReferenceAxis = (sketch14, ["Axis0"])
groove4.Angle = 360

sketch15 = body.newObject("Sketcher::SketchObject", "Sketch014")
sketch15.AttachmentSupport = (doc.getObject("YZ_Plane"), [""])
sketch15.MapMode = "FlatFace"
sketch15.AttachmentOffset = App.Placement(V(0, 0, 10.5), App.Rotation())
sketch15.addGeometry([
    Part.LineSegment(V(15, -12.9, 0), V(15, 12.9, 0)),
    Part.LineSegment(V(15, 12.9, 0), V(13, 12.9, 0)),
    Part.LineSegment(V(13, 12.9, 0), V(13, -12.9, 0)),
    Part.LineSegment(V(13, -12.9, 0), V(15, -12.9, 0)),
], False)
sketch15.addGeometry(Part.LineSegment(V(15, -12.9, 0), V(15, 12.9, 0)), True)
sketch15.addConstraint([
    Sketcher.Constraint("Coincident", 0, 2, 1, 1),
    Sketcher.Constraint("Coincident", 1, 2, 2, 1),
    Sketcher.Constraint("Coincident", 2, 2, 3, 1),
    Sketcher.Constraint("Coincident", 3, 2, 0, 1),
    Sketcher.Constraint("Vertical", 0),
    Sketcher.Constraint("Horizontal", 1),
    Sketcher.Constraint("Vertical", 2),
    Sketcher.Constraint("Horizontal", 3),
    Sketcher.Constraint("Vertical", 4),
    Sketcher.Constraint("Coincident", 4, 1, 3, 2),
    Sketcher.Constraint("Horizontal", 1, 2, 4, 2),
    Sketcher.Constraint("DistanceX", 1, 2, 1, 1, 2.0),
    Sketcher.Constraint("DistanceY", 0, 1, 0, 2, 25.8),
    Sketcher.Constraint("DistanceX", -1, 1, 0, 2, 15.0),
    Sketcher.Constraint("DistanceY", -1, 1, 0, 2, 12.9),
])
revolution = body.newObject("PartDesign::Revolution", "Revolution")
revolution.Profile = sketch15
revolution.ReferenceAxis = (sketch15, ["Axis0"])
revolution.Angle = 360

sketch16 = body.newObject("Sketcher::SketchObject", "Sketch015")
sketch16.AttachmentSupport = (doc.getObject("YZ_Plane"), [""])
sketch16.MapMode = "FlatFace"
sketch16.AttachmentOffset = App.Placement(V(0, 0, 10.5), App.Rotation())
sketch16.addGeometry([
    Part.LineSegment(V(-15, -12.9, 0), V(-15, 12.9, 0)),
    Part.LineSegment(V(-15, 12.9, 0), V(-17, 12.9, 0)),
    Part.LineSegment(V(-17, 12.9, 0), V(-17, -12.9, 0)),
    Part.LineSegment(V(-17, -12.9, 0), V(-15, -12.9, 0)),
], False)
sketch16.addGeometry(Part.LineSegment(V(-15, -12.9, 0), V(-15, 12.9, 0)), True)
sketch16.addConstraint([
    Sketcher.Constraint("Coincident", 0, 2, 1, 1),
    Sketcher.Constraint("Coincident", 1, 2, 2, 1),
    Sketcher.Constraint("Coincident", 2, 2, 3, 1),
    Sketcher.Constraint("Coincident", 3, 2, 0, 1),
    Sketcher.Constraint("Vertical", 0),
    Sketcher.Constraint("Horizontal", 1),
    Sketcher.Constraint("Vertical", 2),
    Sketcher.Constraint("Horizontal", 3),
    Sketcher.Constraint("Vertical", 4),
    Sketcher.Constraint("Coincident", 4, 1, 3, 2),
    Sketcher.Constraint("Horizontal", 1, 2, 4, 2),
    Sketcher.Constraint("DistanceX", 1, 2, 1, 1, 2.0),
    Sketcher.Constraint("DistanceY", 0, 1, 0, 2, 25.8),
    Sketcher.Constraint("DistanceX", 0, 2, -1, 1, 15.0),
    Sketcher.Constraint("DistanceY", -1, 1, 0, 2, 12.9),
])
revolution2 = body.newObject("PartDesign::Revolution", "Revolution001")
revolution2.Profile = sketch16
revolution2.ReferenceAxis = (sketch16, ["Axis0"])
revolution2.Angle = 360

doc.recompute()
